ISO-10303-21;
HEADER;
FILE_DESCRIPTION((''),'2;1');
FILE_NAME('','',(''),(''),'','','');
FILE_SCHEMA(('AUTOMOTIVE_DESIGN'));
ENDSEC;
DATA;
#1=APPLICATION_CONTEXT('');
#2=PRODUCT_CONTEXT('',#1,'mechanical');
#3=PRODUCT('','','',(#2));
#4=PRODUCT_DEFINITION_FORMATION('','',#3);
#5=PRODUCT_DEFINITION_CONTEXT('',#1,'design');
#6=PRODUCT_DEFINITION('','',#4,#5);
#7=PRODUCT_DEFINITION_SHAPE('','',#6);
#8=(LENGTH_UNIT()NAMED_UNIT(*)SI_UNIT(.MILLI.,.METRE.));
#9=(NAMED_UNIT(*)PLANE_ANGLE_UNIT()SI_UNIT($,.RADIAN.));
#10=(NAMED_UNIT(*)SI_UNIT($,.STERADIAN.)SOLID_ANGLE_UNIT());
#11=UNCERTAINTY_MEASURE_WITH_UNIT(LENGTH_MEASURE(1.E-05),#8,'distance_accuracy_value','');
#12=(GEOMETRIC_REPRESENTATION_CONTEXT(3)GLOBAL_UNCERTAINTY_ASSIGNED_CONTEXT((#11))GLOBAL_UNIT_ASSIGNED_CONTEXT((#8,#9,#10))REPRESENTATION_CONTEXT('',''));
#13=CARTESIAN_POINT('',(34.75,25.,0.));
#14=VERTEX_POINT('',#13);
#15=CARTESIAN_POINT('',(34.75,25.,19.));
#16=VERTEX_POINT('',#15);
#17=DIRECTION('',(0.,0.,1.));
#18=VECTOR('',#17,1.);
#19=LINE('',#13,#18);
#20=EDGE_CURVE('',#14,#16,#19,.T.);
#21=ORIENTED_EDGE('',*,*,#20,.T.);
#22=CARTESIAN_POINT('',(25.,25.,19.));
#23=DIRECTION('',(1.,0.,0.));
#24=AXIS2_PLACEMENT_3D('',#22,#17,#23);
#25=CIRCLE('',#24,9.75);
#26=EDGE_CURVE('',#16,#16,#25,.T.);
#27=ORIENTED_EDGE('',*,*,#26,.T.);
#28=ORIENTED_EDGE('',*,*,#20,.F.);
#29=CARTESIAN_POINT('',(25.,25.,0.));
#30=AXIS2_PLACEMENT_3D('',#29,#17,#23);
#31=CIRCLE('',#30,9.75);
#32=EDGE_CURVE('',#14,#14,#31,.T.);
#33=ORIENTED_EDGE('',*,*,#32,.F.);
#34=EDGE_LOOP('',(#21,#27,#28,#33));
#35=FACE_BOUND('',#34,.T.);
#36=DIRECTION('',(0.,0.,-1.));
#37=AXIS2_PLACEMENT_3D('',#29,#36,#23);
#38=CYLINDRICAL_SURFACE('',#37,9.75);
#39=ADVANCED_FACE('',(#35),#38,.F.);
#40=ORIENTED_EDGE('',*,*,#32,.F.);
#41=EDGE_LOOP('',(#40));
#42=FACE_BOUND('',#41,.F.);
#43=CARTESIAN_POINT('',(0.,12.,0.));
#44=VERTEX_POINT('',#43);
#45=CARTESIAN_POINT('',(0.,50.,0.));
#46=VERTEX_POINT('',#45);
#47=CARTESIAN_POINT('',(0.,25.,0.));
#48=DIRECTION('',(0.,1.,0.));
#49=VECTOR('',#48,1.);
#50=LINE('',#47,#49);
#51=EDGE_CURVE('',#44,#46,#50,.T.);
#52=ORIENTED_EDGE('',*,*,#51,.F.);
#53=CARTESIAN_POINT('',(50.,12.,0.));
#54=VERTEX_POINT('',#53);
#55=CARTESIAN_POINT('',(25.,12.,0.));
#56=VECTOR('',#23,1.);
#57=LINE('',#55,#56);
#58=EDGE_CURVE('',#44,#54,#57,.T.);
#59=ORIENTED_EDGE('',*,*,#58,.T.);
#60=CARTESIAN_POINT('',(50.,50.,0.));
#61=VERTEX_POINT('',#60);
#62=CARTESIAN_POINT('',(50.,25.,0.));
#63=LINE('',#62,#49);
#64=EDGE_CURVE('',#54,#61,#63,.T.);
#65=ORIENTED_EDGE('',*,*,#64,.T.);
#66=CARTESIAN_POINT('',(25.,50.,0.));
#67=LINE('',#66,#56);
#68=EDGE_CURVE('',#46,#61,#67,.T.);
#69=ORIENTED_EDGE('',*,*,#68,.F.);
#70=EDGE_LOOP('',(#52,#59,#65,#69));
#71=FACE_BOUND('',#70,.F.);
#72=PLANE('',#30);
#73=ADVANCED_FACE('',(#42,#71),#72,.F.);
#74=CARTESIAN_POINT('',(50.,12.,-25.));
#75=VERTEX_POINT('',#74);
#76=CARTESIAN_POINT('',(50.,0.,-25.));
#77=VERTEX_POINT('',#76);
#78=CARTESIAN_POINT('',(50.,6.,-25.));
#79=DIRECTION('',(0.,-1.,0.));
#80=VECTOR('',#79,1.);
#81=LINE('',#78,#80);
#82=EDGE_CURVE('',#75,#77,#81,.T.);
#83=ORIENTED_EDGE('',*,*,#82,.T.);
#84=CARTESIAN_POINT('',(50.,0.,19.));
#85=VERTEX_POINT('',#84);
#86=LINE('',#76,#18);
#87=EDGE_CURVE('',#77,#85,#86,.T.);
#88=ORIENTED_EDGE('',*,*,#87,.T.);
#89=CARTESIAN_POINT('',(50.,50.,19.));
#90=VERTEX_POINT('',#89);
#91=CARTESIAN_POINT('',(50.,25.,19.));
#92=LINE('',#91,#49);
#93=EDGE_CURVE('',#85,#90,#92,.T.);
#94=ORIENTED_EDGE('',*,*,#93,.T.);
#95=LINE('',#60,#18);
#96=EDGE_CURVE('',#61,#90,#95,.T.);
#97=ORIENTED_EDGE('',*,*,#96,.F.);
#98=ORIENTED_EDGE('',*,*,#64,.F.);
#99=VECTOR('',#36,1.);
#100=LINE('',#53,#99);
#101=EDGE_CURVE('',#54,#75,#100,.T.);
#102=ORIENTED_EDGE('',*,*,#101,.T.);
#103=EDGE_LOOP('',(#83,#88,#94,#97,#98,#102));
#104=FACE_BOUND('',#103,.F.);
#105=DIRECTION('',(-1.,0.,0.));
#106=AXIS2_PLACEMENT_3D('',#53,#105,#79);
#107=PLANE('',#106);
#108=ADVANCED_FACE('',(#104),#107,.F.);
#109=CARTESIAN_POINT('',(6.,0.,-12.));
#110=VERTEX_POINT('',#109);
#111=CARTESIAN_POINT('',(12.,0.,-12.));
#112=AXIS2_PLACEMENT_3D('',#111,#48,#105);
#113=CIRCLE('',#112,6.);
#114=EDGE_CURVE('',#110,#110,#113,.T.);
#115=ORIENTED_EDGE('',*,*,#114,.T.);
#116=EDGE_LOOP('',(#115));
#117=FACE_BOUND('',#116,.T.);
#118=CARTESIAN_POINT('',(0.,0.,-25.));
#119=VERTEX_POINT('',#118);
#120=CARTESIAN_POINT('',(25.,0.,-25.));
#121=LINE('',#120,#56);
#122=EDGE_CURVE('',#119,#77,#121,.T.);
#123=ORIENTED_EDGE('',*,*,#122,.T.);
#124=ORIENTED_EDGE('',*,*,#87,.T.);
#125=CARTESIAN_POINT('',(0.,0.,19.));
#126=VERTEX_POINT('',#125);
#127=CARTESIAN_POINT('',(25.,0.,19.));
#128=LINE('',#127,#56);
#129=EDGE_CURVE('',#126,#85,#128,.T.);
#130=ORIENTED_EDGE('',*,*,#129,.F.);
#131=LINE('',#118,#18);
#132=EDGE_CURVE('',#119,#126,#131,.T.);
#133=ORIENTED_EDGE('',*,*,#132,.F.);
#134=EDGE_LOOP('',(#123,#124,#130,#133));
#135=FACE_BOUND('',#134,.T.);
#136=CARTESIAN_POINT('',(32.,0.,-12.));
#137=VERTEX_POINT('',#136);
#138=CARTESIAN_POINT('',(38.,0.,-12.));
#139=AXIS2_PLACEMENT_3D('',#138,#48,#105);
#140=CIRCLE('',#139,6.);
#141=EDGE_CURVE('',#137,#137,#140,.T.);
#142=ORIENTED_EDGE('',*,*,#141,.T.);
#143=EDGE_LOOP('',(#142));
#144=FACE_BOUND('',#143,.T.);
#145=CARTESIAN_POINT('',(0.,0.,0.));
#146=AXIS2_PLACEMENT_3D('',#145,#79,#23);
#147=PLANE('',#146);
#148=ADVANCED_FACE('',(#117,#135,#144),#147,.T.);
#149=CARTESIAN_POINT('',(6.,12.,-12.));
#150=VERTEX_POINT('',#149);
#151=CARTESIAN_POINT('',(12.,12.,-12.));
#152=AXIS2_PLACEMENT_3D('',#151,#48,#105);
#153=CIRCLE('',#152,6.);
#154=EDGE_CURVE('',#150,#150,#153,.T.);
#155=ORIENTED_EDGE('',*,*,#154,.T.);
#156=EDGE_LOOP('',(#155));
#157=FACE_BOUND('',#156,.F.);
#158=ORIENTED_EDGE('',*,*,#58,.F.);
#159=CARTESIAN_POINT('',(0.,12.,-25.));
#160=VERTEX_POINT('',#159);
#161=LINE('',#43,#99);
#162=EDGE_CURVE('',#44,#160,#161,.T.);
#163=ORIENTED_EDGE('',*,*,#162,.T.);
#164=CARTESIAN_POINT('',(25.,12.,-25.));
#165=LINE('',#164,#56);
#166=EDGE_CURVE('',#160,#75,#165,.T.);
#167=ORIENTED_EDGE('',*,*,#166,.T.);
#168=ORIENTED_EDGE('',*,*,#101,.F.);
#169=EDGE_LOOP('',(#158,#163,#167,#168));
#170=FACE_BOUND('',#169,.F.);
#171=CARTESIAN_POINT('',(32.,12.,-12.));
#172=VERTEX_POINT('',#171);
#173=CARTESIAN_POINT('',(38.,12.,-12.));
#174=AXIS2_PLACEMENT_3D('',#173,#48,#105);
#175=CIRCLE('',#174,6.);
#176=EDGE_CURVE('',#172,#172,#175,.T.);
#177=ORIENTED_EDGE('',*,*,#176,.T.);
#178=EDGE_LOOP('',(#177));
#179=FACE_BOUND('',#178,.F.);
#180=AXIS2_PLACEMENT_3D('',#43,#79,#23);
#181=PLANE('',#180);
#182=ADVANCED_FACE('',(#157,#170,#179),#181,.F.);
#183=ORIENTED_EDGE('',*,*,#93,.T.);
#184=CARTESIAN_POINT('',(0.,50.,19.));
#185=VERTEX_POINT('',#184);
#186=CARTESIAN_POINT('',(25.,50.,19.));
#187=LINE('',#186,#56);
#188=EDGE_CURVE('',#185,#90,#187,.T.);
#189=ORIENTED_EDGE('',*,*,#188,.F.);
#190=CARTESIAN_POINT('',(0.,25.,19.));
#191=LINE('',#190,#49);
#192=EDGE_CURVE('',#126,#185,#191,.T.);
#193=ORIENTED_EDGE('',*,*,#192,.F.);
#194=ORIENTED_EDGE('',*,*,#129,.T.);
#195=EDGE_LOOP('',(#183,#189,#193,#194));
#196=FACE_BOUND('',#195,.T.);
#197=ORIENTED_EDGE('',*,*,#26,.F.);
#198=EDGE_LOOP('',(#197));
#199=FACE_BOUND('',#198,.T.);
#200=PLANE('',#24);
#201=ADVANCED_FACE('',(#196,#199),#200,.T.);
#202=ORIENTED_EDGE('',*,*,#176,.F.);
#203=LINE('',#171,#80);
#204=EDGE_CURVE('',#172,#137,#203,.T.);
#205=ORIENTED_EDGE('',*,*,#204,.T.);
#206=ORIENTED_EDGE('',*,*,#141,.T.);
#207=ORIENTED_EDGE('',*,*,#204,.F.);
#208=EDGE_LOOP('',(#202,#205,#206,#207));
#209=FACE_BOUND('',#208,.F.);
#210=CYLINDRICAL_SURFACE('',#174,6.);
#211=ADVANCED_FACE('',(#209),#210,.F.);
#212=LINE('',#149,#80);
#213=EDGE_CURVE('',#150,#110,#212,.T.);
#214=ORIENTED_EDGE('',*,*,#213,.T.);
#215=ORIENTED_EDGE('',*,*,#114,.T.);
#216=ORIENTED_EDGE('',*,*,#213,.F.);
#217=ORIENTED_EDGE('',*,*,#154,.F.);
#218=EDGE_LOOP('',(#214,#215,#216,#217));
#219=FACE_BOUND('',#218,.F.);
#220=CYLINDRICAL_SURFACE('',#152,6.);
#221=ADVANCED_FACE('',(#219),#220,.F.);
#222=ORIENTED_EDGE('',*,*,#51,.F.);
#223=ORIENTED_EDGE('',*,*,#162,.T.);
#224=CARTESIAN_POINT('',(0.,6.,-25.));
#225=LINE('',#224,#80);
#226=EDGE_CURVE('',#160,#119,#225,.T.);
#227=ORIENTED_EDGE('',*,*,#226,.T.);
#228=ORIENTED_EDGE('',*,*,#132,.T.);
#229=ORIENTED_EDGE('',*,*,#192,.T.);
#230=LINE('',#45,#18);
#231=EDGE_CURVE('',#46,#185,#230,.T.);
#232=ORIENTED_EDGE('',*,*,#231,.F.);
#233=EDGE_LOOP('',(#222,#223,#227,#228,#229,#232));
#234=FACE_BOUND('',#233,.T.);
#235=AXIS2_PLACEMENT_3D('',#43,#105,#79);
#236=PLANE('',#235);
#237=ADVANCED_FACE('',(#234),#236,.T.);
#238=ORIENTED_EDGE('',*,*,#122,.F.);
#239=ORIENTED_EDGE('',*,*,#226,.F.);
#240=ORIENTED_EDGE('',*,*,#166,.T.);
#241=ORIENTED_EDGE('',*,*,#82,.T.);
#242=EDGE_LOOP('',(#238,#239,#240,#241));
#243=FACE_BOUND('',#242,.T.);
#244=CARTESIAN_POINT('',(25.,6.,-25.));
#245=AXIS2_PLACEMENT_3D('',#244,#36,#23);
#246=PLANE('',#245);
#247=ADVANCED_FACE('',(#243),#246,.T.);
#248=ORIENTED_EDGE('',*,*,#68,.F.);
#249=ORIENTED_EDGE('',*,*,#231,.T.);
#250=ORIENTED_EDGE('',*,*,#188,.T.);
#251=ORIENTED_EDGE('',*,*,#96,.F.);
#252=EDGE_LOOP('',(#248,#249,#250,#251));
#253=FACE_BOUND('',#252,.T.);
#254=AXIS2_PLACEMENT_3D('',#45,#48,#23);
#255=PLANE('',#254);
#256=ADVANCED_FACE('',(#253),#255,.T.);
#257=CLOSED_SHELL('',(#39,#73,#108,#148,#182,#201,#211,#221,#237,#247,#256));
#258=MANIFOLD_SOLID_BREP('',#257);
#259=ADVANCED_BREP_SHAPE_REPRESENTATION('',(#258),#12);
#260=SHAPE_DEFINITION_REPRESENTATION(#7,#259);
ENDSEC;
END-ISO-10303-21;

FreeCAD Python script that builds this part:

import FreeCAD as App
import Part
import Sketcher
Q = App.Units.Quantity


def add_polygon(sketch, points):
    """Adds a closed chain of lines whose ends are joined by coincident constraints."""
    first, n = sketch.GeometryCount, len(points)
    for a, b in zip(points, points[1:] + points[:1]):
        sketch.addGeometry(Part.LineSegment(App.Vector(*a, 0), App.Vector(*b, 0)), False)
    for i in range(n):
        sketch.addConstraint(Sketcher.Constraint("Coincident", first + i, 2, first + (i + 1) % n, 1))

doc = App.newDocument("Part")
body = doc.addObject("PartDesign::Body", "Body")

# Sketch on XY plane
sketch1 = body.newObject("Sketcher::SketchObject", "Sketch")
sketch1.AttachmentSupport = (doc.getObject("XY_Plane"), [""])
sketch1.MapMode = "FlatFace"
add_polygon(sketch1, [(0, 50), (0, 0), (50, 0), (50, 50)])  # lines 0-3
sketch1.addGeometry(Part.Circle(App.Vector(25, 25, 0), App.Vector(0, 0, 1), 10), False)  # 4
sketch1.addConstraint(Sketcher.Constraint("Vertical", 0))
sketch1.addConstraint(Sketcher.Constraint("Horizontal", 1))
sketch1.addConstraint(Sketcher.Constraint("Vertical", 2))
sketch1.addConstraint(Sketcher.Constraint("Horizontal", 3))
sketch1.addConstraint(Sketcher.Constraint("Coincident", 0, 2, -1, 1))
sketch1.addConstraint(Sketcher.Constraint("Equal", 3, 0))
sketch1.addConstraint(Sketcher.Constraint("Diameter", 4, Q("19.5 mm")))
sketch1.addConstraint(Sketcher.Constraint("DistanceX", 1, 1, 1, 2, Q("50 mm")))
sketch1.addConstraint(Sketcher.Constraint("DistanceX", -1, 1, 4, 3, Q("25 mm")))
sketch1.addConstraint(Sketcher.Constraint("DistanceY", -1, 1, 4, 3, Q("25 mm")))
pad1 = body.newObject("PartDesign::Pad", "Pad")
pad1.Profile = sketch1
pad1.Length = 19

# Sketch on XY plane
sketch2 = body.newObject("Sketcher::SketchObject", "Sketch001")
sketch2.AttachmentSupport = (doc.getObject("XY_Plane"), [""])
sketch2.MapMode = "FlatFace"
add_polygon(sketch2, [(0, 0), (0, 12), (50, 12), (50, 0)])  # lines 0-3
sketch2.addConstraint(Sketcher.Constraint("Vertical", 0))
sketch2.addConstraint(Sketcher.Constraint("Horizontal", 1))
sketch2.addConstraint(Sketcher.Constraint("Vertical", 2))
sketch2.addConstraint(Sketcher.Constraint("Horizontal", 3))
sketch2.addConstraint(Sketcher.Constraint("Coincident", 3, 2, -1, 1))
sketch2.addConstraint(Sketcher.Constraint("DistanceX", 1, 1, 1, 2, Q("50 mm")))
sketch2.addConstraint(Sketcher.Constraint("DistanceY", 0, 1, 0, 2, Q("12 mm")))
pad2 = body.newObject("PartDesign::Pad", "Pad001")
pad2.Profile = sketch2
pad2.Length = 25
pad2.Reversed = True

# Sketch on XZ plane
sketch3 = body.newObject("Sketcher::SketchObject", "Sketch002")
sketch3.AttachmentSupport = (doc.getObject("XZ_Plane"), [""])
sketch3.MapMode = "FlatFace"
sketch3.AttachmentOffset = App.Placement(App.Vector(0, 0, -12), App.Rotation())
sketch3.addGeometry(Part.Circle(App.Vector(38, -12, 0), App.Vector(0, 0, 1), 6), False)
sketch3.addGeometry(Part.Circle(App.Vector(12, -12, 0), App.Vector(0, 0, 1), 6), False)
sketch3.addConstraint(Sketcher.Constraint("Equal", 0, 1))
sketch3.addConstraint(Sketcher.Constraint("Horizontal", 0, 3, 1, 3))
sketch3.addConstraint(Sketcher.Constraint("Diameter", 0, Q("12 mm")))
sketch3.addConstraint(Sketcher.Constraint("DistanceX", -1, 1, 0, 3, Q("38 mm")))
sketch3.addConstraint(Sketcher.Constraint("DistanceY", 0, 3, -1, 1, Q("12 mm")))
sketch3.addConstraint(Sketcher.Constraint("DistanceX", -1, 1, 1, 3, Q("12 mm")))
pocket1 = body.newObject("PartDesign::Pocket", "Pocket")
pocket1.Profile = sketch3
pocket1.Type = "ThroughAll"
pocket1.Reversed = True

doc.recompute()
